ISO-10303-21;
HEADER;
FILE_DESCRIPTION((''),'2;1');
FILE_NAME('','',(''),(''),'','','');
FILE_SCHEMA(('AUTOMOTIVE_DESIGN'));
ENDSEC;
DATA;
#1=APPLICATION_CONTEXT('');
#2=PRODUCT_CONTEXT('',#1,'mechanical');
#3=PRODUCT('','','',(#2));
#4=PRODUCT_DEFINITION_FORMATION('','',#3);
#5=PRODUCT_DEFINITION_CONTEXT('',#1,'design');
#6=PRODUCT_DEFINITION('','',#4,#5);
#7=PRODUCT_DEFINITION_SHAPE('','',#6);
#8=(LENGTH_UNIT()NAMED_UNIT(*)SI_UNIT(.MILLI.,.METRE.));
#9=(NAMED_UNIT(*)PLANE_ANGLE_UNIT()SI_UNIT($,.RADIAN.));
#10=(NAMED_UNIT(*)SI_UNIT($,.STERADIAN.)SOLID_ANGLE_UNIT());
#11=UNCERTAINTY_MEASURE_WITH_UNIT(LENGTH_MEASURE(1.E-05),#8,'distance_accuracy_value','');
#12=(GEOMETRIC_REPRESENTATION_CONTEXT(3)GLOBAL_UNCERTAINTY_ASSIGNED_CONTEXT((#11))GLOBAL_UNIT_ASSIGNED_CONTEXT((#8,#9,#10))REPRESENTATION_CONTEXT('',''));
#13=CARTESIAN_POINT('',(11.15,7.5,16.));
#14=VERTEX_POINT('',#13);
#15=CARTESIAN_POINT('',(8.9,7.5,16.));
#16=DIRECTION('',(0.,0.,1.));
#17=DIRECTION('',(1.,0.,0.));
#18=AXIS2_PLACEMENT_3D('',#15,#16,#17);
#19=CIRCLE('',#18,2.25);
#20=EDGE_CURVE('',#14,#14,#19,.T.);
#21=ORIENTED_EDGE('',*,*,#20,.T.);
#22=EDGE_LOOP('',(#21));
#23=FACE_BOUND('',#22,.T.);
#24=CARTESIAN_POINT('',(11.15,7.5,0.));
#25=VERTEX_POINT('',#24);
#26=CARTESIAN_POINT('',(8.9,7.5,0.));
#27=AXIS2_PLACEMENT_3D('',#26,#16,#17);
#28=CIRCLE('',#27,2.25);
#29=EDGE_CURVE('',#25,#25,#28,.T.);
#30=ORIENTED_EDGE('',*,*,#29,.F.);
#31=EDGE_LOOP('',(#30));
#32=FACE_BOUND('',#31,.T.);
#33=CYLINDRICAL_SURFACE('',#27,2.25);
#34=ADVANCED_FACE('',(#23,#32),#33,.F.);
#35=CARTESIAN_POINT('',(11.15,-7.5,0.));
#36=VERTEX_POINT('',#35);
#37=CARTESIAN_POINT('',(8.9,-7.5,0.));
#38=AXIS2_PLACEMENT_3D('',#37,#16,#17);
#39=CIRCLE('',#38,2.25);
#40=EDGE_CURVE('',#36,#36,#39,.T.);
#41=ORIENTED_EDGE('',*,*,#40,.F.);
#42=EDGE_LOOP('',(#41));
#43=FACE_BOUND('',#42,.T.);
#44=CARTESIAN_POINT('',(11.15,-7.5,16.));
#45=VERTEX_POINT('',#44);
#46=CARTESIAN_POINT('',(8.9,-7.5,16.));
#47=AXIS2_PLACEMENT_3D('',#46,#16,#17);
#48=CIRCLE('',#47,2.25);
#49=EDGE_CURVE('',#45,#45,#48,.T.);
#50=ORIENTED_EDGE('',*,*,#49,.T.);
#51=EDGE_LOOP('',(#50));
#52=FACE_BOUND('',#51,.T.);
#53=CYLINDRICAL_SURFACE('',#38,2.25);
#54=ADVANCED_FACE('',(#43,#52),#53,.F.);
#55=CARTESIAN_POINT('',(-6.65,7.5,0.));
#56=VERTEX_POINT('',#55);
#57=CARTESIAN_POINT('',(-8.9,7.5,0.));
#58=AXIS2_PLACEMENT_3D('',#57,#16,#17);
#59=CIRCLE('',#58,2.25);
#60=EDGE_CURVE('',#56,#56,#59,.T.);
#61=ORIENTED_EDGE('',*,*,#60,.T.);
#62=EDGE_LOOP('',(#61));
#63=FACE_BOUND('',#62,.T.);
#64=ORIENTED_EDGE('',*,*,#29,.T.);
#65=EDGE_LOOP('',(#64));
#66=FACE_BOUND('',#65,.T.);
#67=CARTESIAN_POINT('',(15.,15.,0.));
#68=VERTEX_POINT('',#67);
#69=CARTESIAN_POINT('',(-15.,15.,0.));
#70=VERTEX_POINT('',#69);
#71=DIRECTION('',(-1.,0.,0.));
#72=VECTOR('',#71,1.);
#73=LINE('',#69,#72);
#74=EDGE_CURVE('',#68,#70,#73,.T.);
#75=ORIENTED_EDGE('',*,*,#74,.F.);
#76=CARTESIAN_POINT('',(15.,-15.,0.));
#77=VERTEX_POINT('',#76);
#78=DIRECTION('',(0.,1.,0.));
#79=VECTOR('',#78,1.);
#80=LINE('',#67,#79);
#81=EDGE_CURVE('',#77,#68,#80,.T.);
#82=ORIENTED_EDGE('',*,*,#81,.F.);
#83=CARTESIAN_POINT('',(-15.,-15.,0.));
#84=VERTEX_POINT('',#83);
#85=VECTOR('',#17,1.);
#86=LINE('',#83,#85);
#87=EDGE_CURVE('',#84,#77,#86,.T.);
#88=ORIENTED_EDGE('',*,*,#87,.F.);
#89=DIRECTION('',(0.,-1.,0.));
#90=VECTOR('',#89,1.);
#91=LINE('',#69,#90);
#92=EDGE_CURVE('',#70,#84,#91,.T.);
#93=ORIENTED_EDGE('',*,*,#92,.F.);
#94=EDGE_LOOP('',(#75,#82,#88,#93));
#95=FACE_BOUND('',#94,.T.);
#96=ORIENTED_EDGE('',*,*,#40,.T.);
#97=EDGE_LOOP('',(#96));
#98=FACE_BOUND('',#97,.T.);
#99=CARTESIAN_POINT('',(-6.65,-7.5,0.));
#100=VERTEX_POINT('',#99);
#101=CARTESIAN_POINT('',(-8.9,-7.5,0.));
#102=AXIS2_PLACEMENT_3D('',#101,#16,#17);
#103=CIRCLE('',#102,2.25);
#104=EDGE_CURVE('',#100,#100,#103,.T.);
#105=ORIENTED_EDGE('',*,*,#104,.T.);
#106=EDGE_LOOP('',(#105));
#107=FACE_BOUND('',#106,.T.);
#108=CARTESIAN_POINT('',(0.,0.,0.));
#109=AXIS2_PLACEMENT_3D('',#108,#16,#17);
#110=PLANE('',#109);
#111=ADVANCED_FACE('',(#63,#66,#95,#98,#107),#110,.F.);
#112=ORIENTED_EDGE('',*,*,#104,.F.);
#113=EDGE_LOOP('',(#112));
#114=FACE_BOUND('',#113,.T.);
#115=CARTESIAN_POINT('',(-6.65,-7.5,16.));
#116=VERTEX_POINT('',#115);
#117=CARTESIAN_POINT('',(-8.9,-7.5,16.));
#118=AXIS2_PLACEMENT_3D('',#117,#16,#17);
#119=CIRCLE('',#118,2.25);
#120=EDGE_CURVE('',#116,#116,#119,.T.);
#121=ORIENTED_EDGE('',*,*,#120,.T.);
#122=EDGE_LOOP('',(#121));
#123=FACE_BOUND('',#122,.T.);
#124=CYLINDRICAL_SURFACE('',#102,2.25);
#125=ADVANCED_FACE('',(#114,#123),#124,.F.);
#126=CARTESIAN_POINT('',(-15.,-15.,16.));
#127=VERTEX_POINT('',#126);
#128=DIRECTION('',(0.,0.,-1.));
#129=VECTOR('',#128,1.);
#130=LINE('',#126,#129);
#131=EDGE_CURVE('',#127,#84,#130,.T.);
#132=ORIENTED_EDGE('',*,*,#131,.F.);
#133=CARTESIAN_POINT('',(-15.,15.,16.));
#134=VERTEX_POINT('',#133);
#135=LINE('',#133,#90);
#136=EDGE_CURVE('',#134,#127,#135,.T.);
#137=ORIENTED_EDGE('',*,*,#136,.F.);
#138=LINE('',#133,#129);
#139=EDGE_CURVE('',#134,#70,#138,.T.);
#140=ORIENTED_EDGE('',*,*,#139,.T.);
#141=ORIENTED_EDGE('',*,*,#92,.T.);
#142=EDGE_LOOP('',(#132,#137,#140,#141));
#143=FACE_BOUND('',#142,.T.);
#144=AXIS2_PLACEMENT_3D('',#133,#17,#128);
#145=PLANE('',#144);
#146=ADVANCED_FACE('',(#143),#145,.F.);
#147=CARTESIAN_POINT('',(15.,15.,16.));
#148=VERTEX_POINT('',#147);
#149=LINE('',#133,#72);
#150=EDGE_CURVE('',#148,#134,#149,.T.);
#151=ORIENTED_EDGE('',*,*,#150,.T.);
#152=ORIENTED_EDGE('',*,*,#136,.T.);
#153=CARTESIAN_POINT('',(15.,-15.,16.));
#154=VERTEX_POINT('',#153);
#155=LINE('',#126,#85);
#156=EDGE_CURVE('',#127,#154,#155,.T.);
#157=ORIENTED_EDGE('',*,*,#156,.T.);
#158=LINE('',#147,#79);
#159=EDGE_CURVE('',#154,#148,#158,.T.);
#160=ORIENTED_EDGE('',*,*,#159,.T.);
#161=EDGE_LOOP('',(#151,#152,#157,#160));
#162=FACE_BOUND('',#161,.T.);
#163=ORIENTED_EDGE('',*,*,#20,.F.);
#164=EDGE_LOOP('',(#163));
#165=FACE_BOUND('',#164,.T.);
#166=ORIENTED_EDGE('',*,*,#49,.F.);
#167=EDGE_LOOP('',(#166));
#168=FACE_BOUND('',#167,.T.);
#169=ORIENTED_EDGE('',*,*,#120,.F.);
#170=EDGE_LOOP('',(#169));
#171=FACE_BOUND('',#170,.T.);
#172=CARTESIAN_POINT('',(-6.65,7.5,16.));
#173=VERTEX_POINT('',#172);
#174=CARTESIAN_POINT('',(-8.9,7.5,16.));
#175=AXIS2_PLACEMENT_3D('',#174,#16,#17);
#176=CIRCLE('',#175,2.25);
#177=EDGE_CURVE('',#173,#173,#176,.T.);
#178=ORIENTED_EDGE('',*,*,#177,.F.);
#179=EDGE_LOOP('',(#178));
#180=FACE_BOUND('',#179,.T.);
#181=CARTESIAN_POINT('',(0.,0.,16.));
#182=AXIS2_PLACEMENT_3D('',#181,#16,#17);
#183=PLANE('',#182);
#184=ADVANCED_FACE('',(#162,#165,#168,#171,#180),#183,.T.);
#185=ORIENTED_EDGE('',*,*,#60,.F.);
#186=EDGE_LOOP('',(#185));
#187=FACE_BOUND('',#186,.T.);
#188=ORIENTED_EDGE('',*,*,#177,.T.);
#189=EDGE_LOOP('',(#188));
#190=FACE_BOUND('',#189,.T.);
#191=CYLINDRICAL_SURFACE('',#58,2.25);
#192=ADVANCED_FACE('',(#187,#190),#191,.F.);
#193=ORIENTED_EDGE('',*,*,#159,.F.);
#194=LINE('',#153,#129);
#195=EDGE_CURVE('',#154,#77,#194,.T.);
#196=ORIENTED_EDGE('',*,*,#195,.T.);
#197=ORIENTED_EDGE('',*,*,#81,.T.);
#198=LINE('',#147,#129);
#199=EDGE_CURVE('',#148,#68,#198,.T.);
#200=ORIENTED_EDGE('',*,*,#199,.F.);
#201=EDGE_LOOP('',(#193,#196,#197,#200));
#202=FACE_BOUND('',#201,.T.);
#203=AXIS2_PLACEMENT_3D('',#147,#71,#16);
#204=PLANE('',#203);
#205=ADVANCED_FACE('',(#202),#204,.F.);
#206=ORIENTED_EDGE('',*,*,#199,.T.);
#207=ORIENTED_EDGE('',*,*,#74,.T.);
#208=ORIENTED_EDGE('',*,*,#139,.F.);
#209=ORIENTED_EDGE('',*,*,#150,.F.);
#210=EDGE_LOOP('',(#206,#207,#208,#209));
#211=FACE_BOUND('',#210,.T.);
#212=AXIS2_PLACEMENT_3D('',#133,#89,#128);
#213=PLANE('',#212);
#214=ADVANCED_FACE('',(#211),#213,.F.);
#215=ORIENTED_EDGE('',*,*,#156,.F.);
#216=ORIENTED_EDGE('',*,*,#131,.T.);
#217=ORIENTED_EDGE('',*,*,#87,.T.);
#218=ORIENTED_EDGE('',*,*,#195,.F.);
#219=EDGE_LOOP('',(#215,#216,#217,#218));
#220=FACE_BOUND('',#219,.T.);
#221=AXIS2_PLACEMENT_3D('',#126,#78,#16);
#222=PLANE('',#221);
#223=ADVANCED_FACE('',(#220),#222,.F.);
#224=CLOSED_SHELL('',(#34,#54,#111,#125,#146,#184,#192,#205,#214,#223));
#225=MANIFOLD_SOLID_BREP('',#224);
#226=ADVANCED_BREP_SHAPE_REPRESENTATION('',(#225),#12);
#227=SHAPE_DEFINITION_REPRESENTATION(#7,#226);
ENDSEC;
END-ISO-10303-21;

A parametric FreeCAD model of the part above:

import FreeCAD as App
import Part
import Sketcher
Q = App.Units.Quantity


def add_polygon(sketch, points):
    """Adds a closed chain of lines whose ends are joined by coincident constraints."""
    first, n = sketch.GeometryCount, len(points)
    for a, b in zip(points, points[1:] + points[:1]):
        sketch.addGeometry(Part.LineSegment(App.Vector(*a, 0), App.Vector(*b, 0)), False)
    for i in range(n):
        sketch.addConstraint(Sketcher.Constraint("Coincident", first + i, 2, first + (i + 1) % n, 1))

doc = App.newDocument("Part")
params = doc.addObject("Spreadsheet::Sheet", "Params")
for row, (alias, value) in enumerate([
    ("sketch1_width", "30 mm"),
    ("pad1_length", "16 mm"),
    ("sketch2_diameter", "4.5 mm"),
], start=1):
    params.set(f"A{row}", alias)
    params.set(f"B{row}", "=" + value)
    params.setAlias(f"B{row}", alias)

body = doc.addObject("PartDesign::Body", "Body")

# Sketch on XY plane
sketch1 = doc.addObject("Sketcher::SketchObject", "Sketch")
body.addObject(sketch1)
sketch1.AttachmentSupport = (doc.XY_Plane, [""])
sketch1.MapMode = "FlatFace"
add_polygon(sketch1, [(-15, 15), (-15, -15), (15, -15), (15, 15)])  # lines 0-3
sketch1.addConstraint(Sketcher.Constraint("Vertical", 0))
sketch1.addConstraint(Sketcher.Constraint("Horizontal", 1))
sketch1.addConstraint(Sketcher.Constraint("Vertical", 2))
sketch1.addConstraint(Sketcher.Constraint("Horizontal", 3))
sketch1.addConstraint(Sketcher.Constraint("Symmetric", 0, 2, 2, 2, -1, 1))
sketch1.addConstraint(Sketcher.Constraint("Equal", 3, 0))
sketch1.addConstraint(Sketcher.Constraint("DistanceX", 1, 1, 1, 2, Q("30 mm")))
sketch1.setExpression("Constraints[10]", "Params.sketch1_width")
pad1 = doc.addObject("PartDesign::Pad", "Pad")
body.addObject(pad1)
pad1.Profile = sketch1
pad1.setExpression("Length", "Params.pad1_length")

# Sketch on XY plane
sketch2 = doc.addObject("Sketcher::SketchObject", "Sketch001")
body.addObject(sketch2)
sketch2.AttachmentSupport = (doc.XY_Plane, [""])
sketch2.MapMode = "FlatFace"
sketch2.AttachmentOffset = App.Placement(App.Vector(0, 0, 16), App.Rotation())
sketch2.addGeometry(Part.Circle(App.Vector(8.9, 7.5, 0), App.Vector(0, 0, 1), 2.2), False)
sketch2.addGeometry(Part.Circle(App.Vector(8.9, -7.5, 0), App.Vector(0, 0, 1), 2.2), False)
sketch2.addGeometry(Part.Circle(App.Vector(-8.9, 7.5, 0), App.Vector(0, 0, 1), 2.2), False)
sketch2.addGeometry(Part.Circle(App.Vector(-8.9, -7.5, 0), App.Vector(0, 0, 1), 2.2), False)
sketch2.addConstraint(Sketcher.Constraint("Equal", 0, 1))
sketch2.addConstraint(Sketcher.Constraint("Equal", 1, 2))
sketch2.addConstraint(Sketcher.Constraint("Equal", 2, 3))
sketch2.addConstraint(Sketcher.Constraint("Symmetric", 1, 3, 2, 3, -1, 1))
sketch2.addConstraint(Sketcher.Constraint("Symmetric", 0, 3, 3, 3, -1, 1))
sketch2.addConstraint(Sketcher.Constraint("Symmetric", 0, 3, 2, 3, -2))
sketch2.addConstraint(Sketcher.Constraint("Diameter", 0, Q("4.5 mm")))
sketch2.addConstraint(Sketcher.Constraint("DistanceY", 1, 3, 0, 3, Q("15 mm")))
sketch2.addConstraint(Sketcher.Constraint("DistanceX", -1, 1, 0, 3, Q("8.9 mm")))
sketch2.setExpression("Constraints[6]", "Params.sketch2_diameter")
pocket1 = doc.addObject("PartDesign::Pocket", "Pocket")
body.addObject(pocket1)
pocket1.Profile = sketch2
pocket1.Type = "ThroughAll"

doc.recompute()
